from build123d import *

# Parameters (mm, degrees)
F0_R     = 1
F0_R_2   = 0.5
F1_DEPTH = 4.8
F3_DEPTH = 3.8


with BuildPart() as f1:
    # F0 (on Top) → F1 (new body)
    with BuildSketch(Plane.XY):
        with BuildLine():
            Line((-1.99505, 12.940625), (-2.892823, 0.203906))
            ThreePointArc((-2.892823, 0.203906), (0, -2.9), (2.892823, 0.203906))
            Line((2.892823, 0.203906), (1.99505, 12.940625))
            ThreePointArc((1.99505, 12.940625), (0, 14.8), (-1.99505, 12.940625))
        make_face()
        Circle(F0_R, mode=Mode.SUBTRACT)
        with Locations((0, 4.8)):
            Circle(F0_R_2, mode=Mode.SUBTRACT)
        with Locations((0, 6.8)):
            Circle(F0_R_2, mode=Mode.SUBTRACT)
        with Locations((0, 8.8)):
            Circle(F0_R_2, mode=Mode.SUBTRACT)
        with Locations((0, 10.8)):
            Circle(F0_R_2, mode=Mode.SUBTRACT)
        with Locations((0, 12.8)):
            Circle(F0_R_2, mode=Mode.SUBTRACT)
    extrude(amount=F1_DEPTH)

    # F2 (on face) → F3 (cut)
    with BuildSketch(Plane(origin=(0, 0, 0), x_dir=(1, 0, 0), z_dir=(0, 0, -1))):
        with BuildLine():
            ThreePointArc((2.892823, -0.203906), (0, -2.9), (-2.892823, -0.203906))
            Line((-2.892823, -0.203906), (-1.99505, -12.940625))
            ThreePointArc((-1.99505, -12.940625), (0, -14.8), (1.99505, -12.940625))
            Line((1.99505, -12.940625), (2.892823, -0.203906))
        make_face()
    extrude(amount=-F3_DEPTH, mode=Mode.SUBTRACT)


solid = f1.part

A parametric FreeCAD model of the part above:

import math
import FreeCAD as App
import Part
import Sketcher

V = App.Vector
Q = App.Units.Quantity

doc = App.newDocument("Part")
body = doc.addObject("PartDesign::Body", "Body")

# Sketch on XY plane
sketch1 = body.newObject("Sketcher::SketchObject", "Sketch")
sketch1.AttachmentSupport = (doc.getObject("XY_Plane"), [""])
sketch1.MapMode = "FlatFace"
sketch1.addGeometry(Part.LineSegment(V(-1.99505, 12.940625, 0), V(-2.892823, 0.203906, 0)), False)
sketch1.addGeometry(Part.ArcOfCircle(Part.Circle(V(0, 0, 0), V(0, 0, 1), 2.9), math.radians(175.968077), math.radians(364.031923)), False)
sketch1.addGeometry(Part.LineSegment(V(2.892823, 0.203906, 0), V(1.99505, 12.940625, 0)), False)
sketch1.addGeometry(Part.ArcOfCircle(Part.Circle(V(0, 12.8, 0), V(0, 0, 1), 2), math.radians(4.031936), math.radians(175.968064)), False)
sketch1.addGeometry(Part.Circle(V(0, 0, 0), V(0, 0, 1), 1), False)
sketch1.addGeometry(Part.Circle(V(0, 4.8, 0), V(0, 0, 1), 0.5), False)
sketch1.addGeometry(Part.Circle(V(0, 6.8, 0), V(0, 0, 1), 0.5), False)
sketch1.addGeometry(Part.Circle(V(0, 8.8, 0), V(0, 0, 1), 0.5), False)
sketch1.addGeometry(Part.Circle(V(0, 10.8, 0), V(0, 0, 1), 0.5), False)
sketch1.addGeometry(Part.Circle(V(0, 12.8, 0), V(0, 0, 1), 0.5), False)
sketch1.addConstraint(Sketcher.Constraint("Tangent", 0, 2, 1, 1))
sketch1.addConstraint(Sketcher.Constraint("Tangent", 1, 2, 2, 1))
sketch1.addConstraint(Sketcher.Constraint("Tangent", 2, 2, 3, 1))
sketch1.addConstraint(Sketcher.Constraint("Tangent", 3, 2, 0, 1))
sketch1.addConstraint(Sketcher.Constraint("Coincident", 1, 3, -1, 1))
sketch1.addConstraint(Sketcher.Constraint("Coincident", 4, 3, -1, 1))
sketch1.addConstraint(Sketcher.Constraint("Coincident", 9, 3, 3, 3))
sketch1.addConstraint(Sketcher.Constraint("Equal", 5, 6))
sketch1.addConstraint(Sketcher.Constraint("Equal", 6, 7))
sketch1.addConstraint(Sketcher.Constraint("Equal", 7, 8))
sketch1.addConstraint(Sketcher.Constraint("Equal", 8, 9))
sketch1.addConstraint(Sketcher.Constraint("PointOnObject", 3, 3, -2))
sketch1.addConstraint(Sketcher.Constraint("PointOnObject", 5, 3, -2))
sketch1.addConstraint(Sketcher.Constraint("PointOnObject", 6, 3, -2))
sketch1.addConstraint(Sketcher.Constraint("PointOnObject", 7, 3, -2))
sketch1.addConstraint(Sketcher.Constraint("PointOnObject", 8, 3, -2))
sketch1.addConstraint(Sketcher.Constraint("Diameter", 4, Q("2 mm")))
sketch1.addConstraint(Sketcher.Constraint("Diameter", 5, Q("1 mm")))
sketch1.addConstraint(Sketcher.Constraint("Radius", 3, Q("2 mm")))
sketch1.addConstraint(Sketcher.Constraint("Radius", 1, Q("2.9 mm")))
sketch1.addConstraint(Sketcher.Constraint("DistanceY", 5, 3, 3, 3, Q("8 mm")))
sketch1.addConstraint(Sketcher.Constraint("DistanceY", 5, 3, 6, 3, Q("2 mm")))
sketch1.addConstraint(Sketcher.Constraint("DistanceY", 6, 3, 7, 3, Q("2 mm")))
sketch1.addConstraint(Sketcher.Constraint("DistanceY", 7, 3, 8, 3, Q("2 mm")))
sketch1.addConstraint(Sketcher.Constraint("DistanceY", -1, 1, 3, 3, Q("12.8 mm")))
pad1 = body.newObject("PartDesign::Pad", "Pad")
pad1.Profile = sketch1
pad1.Length = 4.8

# Sketch on XY plane
sketch2 = body.newObject("Sketcher::SketchObject", "Sketch001")
sketch2.AttachmentSupport = (doc.getObject("XY_Plane"), [""])
sketch2.MapMode = "FlatFace"
sketch2.addGeometry(Part.ArcOfCircle(Part.Circle(V(0, 0, 0), V(0, 0, 1), 2.9), math.radians(4.03194), math.radians(175.96806)), False)
sketch2.addGeometry(Part.LineSegment(V(-2.892823, 0.203906, 0), V(-1.99505, 12.940625, 0)), False)
sketch2.addGeometry(Part.ArcOfCircle(Part.Circle(V(0, 12.8, 0), V(0, 0, 1), 2), math.radians(4.031936), math.radians(175.968064)), False)
sketch2.addGeometry(Part.LineSegment(V(1.99505, 12.940625, 0), V(2.892823, 0.203906, 0)), False)
sketch2.addConstraint(Sketcher.Constraint("Tangent", 0, 2, 1, 1))
sketch2.addConstraint(Sketcher.Constraint("Tangent", 1, 2, 2, 2))
sketch2.addConstraint(Sketcher.Constraint("Tangent", 2, 1, 3, 1))
sketch2.addConstraint(Sketcher.Constraint("Tangent", 3, 2, 0, 1))
sketch2.addConstraint(Sketcher.Constraint("Coincident", 0, 3, -1, 1))
sketch2.addConstraint(Sketcher.Constraint("PointOnObject", 2, 3, -2))
sketch2.addConstraint(Sketcher.Constraint("Radius", 2, Q("2 mm")))
sketch2.addConstraint(Sketcher.Constraint("Radius", 0, Q("2.9 mm")))
sketch2.addConstraint(Sketcher.Constraint("DistanceY", -1, 1, 2, 3, Q("12.8 mm")))
pocket1 = body.newObject("PartDesign::Pocket", "Pocket")
pocket1.Profile = sketch2
pocket1.Length = 3.8
pocket1.Reversed = True

doc.recompute()
